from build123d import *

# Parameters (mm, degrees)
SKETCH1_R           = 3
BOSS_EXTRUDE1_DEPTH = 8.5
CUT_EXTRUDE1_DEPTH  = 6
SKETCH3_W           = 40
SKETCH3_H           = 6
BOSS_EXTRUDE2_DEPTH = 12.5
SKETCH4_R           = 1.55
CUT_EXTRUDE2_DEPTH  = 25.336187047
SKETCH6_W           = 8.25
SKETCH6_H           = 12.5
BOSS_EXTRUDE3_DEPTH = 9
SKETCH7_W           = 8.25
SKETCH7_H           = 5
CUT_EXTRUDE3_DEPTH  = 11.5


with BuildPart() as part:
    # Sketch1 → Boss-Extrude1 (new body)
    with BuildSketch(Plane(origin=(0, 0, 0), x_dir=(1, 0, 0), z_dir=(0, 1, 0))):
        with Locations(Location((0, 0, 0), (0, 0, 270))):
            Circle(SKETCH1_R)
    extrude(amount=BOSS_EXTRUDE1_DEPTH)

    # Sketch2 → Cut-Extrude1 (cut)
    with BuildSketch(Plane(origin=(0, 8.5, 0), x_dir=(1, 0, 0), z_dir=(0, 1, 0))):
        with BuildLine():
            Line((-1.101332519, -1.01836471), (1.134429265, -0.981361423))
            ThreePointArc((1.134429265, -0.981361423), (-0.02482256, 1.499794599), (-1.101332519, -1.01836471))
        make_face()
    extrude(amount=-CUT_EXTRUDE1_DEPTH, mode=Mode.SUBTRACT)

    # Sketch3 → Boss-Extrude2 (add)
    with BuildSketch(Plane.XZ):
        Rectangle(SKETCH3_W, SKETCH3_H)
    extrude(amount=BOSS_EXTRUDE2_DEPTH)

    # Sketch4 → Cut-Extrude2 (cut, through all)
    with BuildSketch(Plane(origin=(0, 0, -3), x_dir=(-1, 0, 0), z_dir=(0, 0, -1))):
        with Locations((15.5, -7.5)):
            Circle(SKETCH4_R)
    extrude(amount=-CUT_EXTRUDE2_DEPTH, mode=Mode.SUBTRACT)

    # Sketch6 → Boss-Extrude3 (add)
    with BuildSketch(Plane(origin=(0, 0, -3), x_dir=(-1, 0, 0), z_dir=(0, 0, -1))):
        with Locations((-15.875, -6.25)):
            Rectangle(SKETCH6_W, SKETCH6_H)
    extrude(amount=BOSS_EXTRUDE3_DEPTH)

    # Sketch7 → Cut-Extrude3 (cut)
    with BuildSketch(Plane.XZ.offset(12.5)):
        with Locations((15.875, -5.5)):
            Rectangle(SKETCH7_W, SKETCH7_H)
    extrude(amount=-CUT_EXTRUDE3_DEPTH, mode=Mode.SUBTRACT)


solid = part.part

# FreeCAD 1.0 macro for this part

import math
import FreeCAD as App
import Part
import Sketcher
Q = App.Units.Quantity

doc = App.newDocument("Part")
body = doc.addObject("PartDesign::Body", "Body")

sketch1 = body.newObject("Sketcher::SketchObject", "Sketch")
sketch1.AttachmentSupport = (doc.getObject("XZ_Plane"), [""])
sketch1.MapMode = "FlatFace"
sketch1.addGeometry(Part.Circle(App.Vector(0, 0, 0), App.Vector(0, 0, 1), 3), False)
sketch1.addConstraint(Sketcher.Constraint("Coincident", 0, 3, -1, 1))
sketch1.addConstraint(Sketcher.Constraint("Diameter", 0, Q("6 mm")))
pad1 = body.newObject("PartDesign::Pad", "Pad")
pad1.Profile = sketch1
pad1.Length = 8.5
pad1.Reversed = True

sketch2 = body.newObject("Sketcher::SketchObject", "Sketch001")
sketch2.AttachmentSupport = (doc.getObject("XZ_Plane"), [""])
sketch2.MapMode = "FlatFace"
sketch2.AttachmentOffset = App.Placement(App.Vector(0, 0, -8.5), App.Rotation())
sketch2.addGeometry(Part.LineSegment(App.Vector(-1.1, 1, 0), App.Vector(1.1, 1, 0)), False)
sketch2.addGeometry(Part.ArcOfCircle(Part.Circle(App.Vector(0, 0, 0), App.Vector(0, 0, 1), 1.5), math.radians(137), math.radians(401)), False)
sketch2.addConstraint(Sketcher.Constraint("Coincident", 0, 1, 1, 1))
sketch2.addConstraint(Sketcher.Constraint("Coincident", 1, 2, 0, 2))
sketch2.addConstraint(Sketcher.Constraint("Coincident", 1, 3, -1, 1))
sketch2.addConstraint(Sketcher.Constraint("Radius", 1, Q("1.5 mm")))
sketch2.addConstraint(Sketcher.Constraint("DistanceX", -1, 1, 1, 2, Q("1.134429 mm")))
sketch2.addConstraint(Sketcher.Constraint("DistanceX", 0, 1, 1, 2, Q("2.235762 mm")))
pocket1 = body.newObject("PartDesign::Pocket", "Pocket")
pocket1.Profile = sketch2
pocket1.Length = 6
pocket1.Reversed = True

sketch3 = body.newObject("Sketcher::SketchObject", "Sketch002")
sketch3.AttachmentSupport = (doc.getObject("XZ_Plane"), [""])
sketch3.MapMode = "FlatFace"
sketch3.addGeometry(Part.LineSegment(App.Vector(-20, 3, 0), App.Vector(-20, -3, 0)), False)
sketch3.addGeometry(Part.LineSegment(App.Vector(-20, -3, 0), App.Vector(20, -3, 0)), False)
sketch3.addGeometry(Part.LineSegment(App.Vector(20, -3, 0), App.Vector(20, 3, 0)), False)
sketch3.addGeometry(Part.LineSegment(App.Vector(20, 3, 0), App.Vector(-20, 3, 0)), False)
sketch3.addConstraint(Sketcher.Constraint("Coincident", 0, 2, 1, 1))
sketch3.addConstraint(Sketcher.Constraint("Coincident", 1, 2, 2, 1))
sketch3.addConstraint(Sketcher.Constraint("Coincident", 2, 2, 3, 1))
sketch3.addConstraint(Sketcher.Constraint("Coincident", 3, 2, 0, 1))
sketch3.addConstraint(Sketcher.Constraint("Vertical", 0))
sketch3.addConstraint(Sketcher.Constraint("Horizontal", 1))
sketch3.addConstraint(Sketcher.Constraint("Vertical", 2))
sketch3.addConstraint(Sketcher.Constraint("Horizontal", 3))
sketch3.addConstraint(Sketcher.Constraint("Symmetric", 0, 2, 2, 2, -1, 1))
sketch3.addConstraint(Sketcher.Constraint("DistanceX", 1, 1, 1, 2, Q("40 mm")))
sketch3.addConstraint(Sketcher.Constraint("DistanceY", 0, 2, 0, 1, Q("6 mm")))
pad2 = body.newObject("PartDesign::Pad", "Pad001")
pad2.Profile = sketch3
pad2.Length = 12.5

sketch4 = body.newObject("Sketcher::SketchObject", "Sketch003")
sketch4.AttachmentSupport = (doc.getObject("XY_Plane"), [""])
sketch4.MapMode = "FlatFace"
sketch4.AttachmentOffset = App.Placement(App.Vector(0, 0, -3), App.Rotation())
sketch4.addGeometry(Part.Circle(App.Vector(-15.5, -7.5, 0), App.Vector(0, 0, 1), 1.6), False)
sketch4.addConstraint(Sketcher.Constraint("Diameter", 0, Q("3.1 mm")))
sketch4.addConstraint(Sketcher.Constraint("DistanceX", 0, 3, -1, 1, Q("15.5 mm")))
sketch4.addConstraint(Sketcher.Constraint("DistanceY", 0, 3, -1, 1, Q("7.5 mm")))
pocket2 = body.newObject("PartDesign::Pocket", "Pocket001")
pocket2.Profile = sketch4
pocket2.Type = "ThroughAll"
pocket2.Reversed = True

sketch5 = body.newObject("Sketcher::SketchObject", "Sketch004")
sketch5.AttachmentSupport = (doc.getObject("XY_Plane"), [""])
sketch5.MapMode = "FlatFace"
sketch5.AttachmentOffset = App.Placement(App.Vector(0, 0, -3), App.Rotation())
sketch5.addGeometry(Part.LineSegment(App.Vector(20, 0, 0), App.Vector(20, -12, 0)), False)
sketch5.addGeometry(Part.LineSegment(App.Vector(20, -12, 0), App.Vector(12, -12, 0)), False)
sketch5.addGeometry(Part.LineSegment(App.Vector(12, -12, 0), App.Vector(12, 0, 0)), False)
sketch5.addGeometry(Part.LineSegment(App.Vector(12, 0, 0), App.Vector(20, 0, 0)), False)
sketch5.addConstraint(Sketcher.Constraint("Coincident", 0, 2, 1, 1))
sketch5.addConstraint(Sketcher.Constraint("Coincident", 1, 2, 2, 1))
sketch5.addConstraint(Sketcher.Constraint("Coincident", 2, 2, 3, 1))
sketch5.addConstraint(Sketcher.Constraint("Coincident", 3, 2, 0, 1))
sketch5.addConstraint(Sketcher.Constraint("Vertical", 0))
sketch5.addConstraint(Sketcher.Constraint("Horizontal", 1))
sketch5.addConstraint(Sketcher.Constraint("Vertical", 2))
sketch5.addConstraint(Sketcher.Constraint("Horizontal", 3))
sketch5.addConstraint(Sketcher.Constraint("PointOnObject", 2, 2, -1))
sketch5.addConstraint(Sketcher.Constraint("DistanceY", 0, 2, 0, 1, Q("12.5 mm")))
sketch5.addConstraint(Sketcher.Constraint("DistanceX", -1, 1, 0, 2, Q("20 mm")))
sketch5.addConstraint(Sketcher.Constraint("DistanceX", 1, 2, 1, 1, Q("8.25 mm")))
pad3 = body.newObject("PartDesign::Pad", "Pad002")
pad3.Profile = sketch5
pad3.Length = 9
pad3.Reversed = True

sketch6 = body.newObject("Sketcher::SketchObject", "Sketch005")
sketch6.AttachmentSupport = (doc.getObject("XZ_Plane"), [""])
sketch6.MapMode = "FlatFace"
sketch6.AttachmentOffset = App.Placement(App.Vector(0, 0, 12.5), App.Rotation())
sketch6.addGeometry(Part.LineSegment(App.Vector(12, -3, 0), App.Vector(12, -8, 0)), False)
sketch6.addGeometry(Part.LineSegment(App.Vector(12, -8, 0), App.Vector(20, -8, 0)), False)
sketch6.addGeometry(Part.LineSegment(App.Vector(20, -8, 0), App.Vector(20, -3, 0)), False)
sketch6.addGeometry(Part.LineSegment(App.Vector(20, -3, 0), App.Vector(12, -3, 0)), False)
sketch6.addConstraint(Sketcher.Constraint("Coincident", 0, 2, 1, 1))
sketch6.addConstraint(Sketcher.Constraint("Coincident", 1, 2, 2, 1))
sketch6.addConstraint(Sketcher.Constraint("Coincident", 2, 2, 3, 1))
sketch6.addConstraint(Sketcher.Constraint("Coincident", 3, 2, 0, 1))
sketch6.addConstraint(Sketcher.Constraint("Vertical", 0))
sketch6.addConstraint(Sketcher.Constraint("Horizontal", 1))
sketch6.addConstraint(Sketcher.Constraint("Vertical", 2))
sketch6.addConstraint(Sketcher.Constraint("Horizontal", 3))
sketch6.addConstraint(Sketcher.Constraint("DistanceY", 0, 2, 0, 1, Q("5 mm")))
sketch6.addConstraint(Sketcher.Constraint("DistanceY", 0, 2, -1, 1, Q("8 mm")))
sketch6.addConstraint(Sketcher.Constraint("DistanceX", -1, 1, 1, 2, Q("20 mm")))
sketch6.addConstraint(Sketcher.Constraint("DistanceX", 1, 1, 1, 2, Q("8.25 mm")))
pocket3 = body.newObject("PartDesign::Pocket", "Pocket002")
pocket3.Profile = sketch6
pocket3.Length = 11.5

doc.recompute()
